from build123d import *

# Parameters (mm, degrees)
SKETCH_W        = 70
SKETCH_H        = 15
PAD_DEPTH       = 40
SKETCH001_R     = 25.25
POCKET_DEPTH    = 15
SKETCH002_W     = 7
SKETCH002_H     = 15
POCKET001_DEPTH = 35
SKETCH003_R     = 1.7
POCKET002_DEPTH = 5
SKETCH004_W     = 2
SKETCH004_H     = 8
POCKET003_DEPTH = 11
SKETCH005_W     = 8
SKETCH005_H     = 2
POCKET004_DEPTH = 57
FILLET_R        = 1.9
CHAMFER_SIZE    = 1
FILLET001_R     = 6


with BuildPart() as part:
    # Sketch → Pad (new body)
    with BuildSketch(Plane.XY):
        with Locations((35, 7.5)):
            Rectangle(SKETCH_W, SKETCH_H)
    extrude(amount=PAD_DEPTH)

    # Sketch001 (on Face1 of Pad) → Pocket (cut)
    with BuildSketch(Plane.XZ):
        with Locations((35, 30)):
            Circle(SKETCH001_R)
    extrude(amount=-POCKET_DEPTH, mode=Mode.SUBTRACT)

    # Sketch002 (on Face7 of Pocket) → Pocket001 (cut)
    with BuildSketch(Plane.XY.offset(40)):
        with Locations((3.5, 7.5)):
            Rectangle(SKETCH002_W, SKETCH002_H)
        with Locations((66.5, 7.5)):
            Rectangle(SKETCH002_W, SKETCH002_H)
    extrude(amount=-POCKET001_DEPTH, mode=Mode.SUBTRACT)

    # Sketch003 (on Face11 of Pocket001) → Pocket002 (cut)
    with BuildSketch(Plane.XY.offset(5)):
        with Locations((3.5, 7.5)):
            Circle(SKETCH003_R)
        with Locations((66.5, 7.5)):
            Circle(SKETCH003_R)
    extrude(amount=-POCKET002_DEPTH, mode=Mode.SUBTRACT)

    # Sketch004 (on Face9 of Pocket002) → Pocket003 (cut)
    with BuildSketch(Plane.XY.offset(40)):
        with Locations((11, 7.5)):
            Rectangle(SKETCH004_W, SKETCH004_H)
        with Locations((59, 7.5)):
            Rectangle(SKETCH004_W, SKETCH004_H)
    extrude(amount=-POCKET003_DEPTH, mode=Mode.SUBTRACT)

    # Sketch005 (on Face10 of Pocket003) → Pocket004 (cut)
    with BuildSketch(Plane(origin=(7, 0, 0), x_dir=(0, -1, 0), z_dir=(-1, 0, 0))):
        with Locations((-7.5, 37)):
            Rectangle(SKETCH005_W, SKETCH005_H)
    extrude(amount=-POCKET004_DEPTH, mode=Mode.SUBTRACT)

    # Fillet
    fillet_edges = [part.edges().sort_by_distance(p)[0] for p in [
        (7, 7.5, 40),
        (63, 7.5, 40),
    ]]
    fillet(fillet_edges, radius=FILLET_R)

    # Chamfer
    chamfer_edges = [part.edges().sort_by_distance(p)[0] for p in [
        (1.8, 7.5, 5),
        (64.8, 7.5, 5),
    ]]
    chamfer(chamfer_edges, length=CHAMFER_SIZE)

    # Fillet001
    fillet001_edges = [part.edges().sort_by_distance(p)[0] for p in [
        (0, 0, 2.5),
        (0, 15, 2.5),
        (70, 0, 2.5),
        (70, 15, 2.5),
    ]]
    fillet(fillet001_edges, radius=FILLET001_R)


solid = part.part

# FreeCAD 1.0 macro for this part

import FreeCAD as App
import Part
import Sketcher

V = App.Vector
Q = App.Units.Quantity


def edges_at(feature, points):
    """Names of the edges that pass closest to the given points."""
    edges = feature.Shape.Edges
    near = lambda p: min(range(len(edges)), key=lambda i: edges[i].distToShape(Part.Vertex(*p))[0])
    return sorted({f"Edge{near(p) + 1}" for p in points})

doc = App.newDocument("Part")
body = doc.addObject("PartDesign::Body", "Body")

# Sketch on XY plane
sketch1 = doc.addObject("Sketcher::SketchObject", "Sketch")
body.addObject(sketch1)
sketch1.AttachmentSupport = (doc.XY_Plane, [""])
sketch1.MapMode = "FlatFace"
sketch1.addGeometry([
    Part.LineSegment(V(0, 15, 0), V(0, 0, 0)),
    Part.LineSegment(V(0, 0, 0), V(70, 0, 0)),
    Part.LineSegment(V(70, 0, 0), V(70, 15, 0)),
    Part.LineSegment(V(70, 15, 0), V(0, 15, 0)),
], False)
sketch1.addConstraint([
    Sketcher.Constraint("Coincident", 0, 2, 1, 1),
    Sketcher.Constraint("Coincident", 1, 2, 2, 1),
    Sketcher.Constraint("Coincident", 2, 2, 3, 1),
    Sketcher.Constraint("Coincident", 3, 2, 0, 1),
    Sketcher.Constraint("Vertical", 0),
    Sketcher.Constraint("Horizontal", 1),
    Sketcher.Constraint("Vertical", 2),
    Sketcher.Constraint("Horizontal", 3),
    Sketcher.Constraint("Coincident", 0, 2, -1, 1),
    Sketcher.Constraint("DistanceX", 1, 1, 1, 2, Q("70 mm")),
    Sketcher.Constraint("DistanceY", 0, 2, 0, 1, Q("15 mm")),
])
pad1 = doc.addObject("PartDesign::Pad", "Pad")
body.addObject(pad1)
pad1.Profile = sketch1
pad1.Length = 40

# Sketch on XZ plane
sketch2 = doc.addObject("Sketcher::SketchObject", "Sketch001")
body.addObject(sketch2)
sketch2.AttachmentSupport = (doc.XZ_Plane, [""])
sketch2.MapMode = "FlatFace"
sketch2.addGeometry(Part.Circle(V(35, 30, 0), V(0, 0, 1), 25.25), False)
sketch2.addConstraint([
    Sketcher.Constraint("Diameter", 0, Q("50.5 mm")),
    Sketcher.Constraint("DistanceX", -1, 1, 0, 3, Q("35 mm")),
    Sketcher.Constraint("DistanceY", -1, 1, 0, 3, Q("30 mm")),
])
pocket1 = doc.addObject("PartDesign::Pocket", "Pocket")
body.addObject(pocket1)
pocket1.Profile = sketch2
pocket1.Length = 15

# Sketch on XY plane
sketch3 = doc.addObject("Sketcher::SketchObject", "Sketch002")
body.addObject(sketch3)
sketch3.AttachmentSupport = (doc.XY_Plane, [""])
sketch3.MapMode = "FlatFace"
sketch3.AttachmentOffset = App.Placement(V(0, 0, 40), App.Rotation())
sketch3.addGeometry([
    Part.LineSegment(V(0, 15, 0), V(0, 0, 0)),  # 0
    Part.LineSegment(V(0, 0, 0), V(7, 0, 0)),  # 1
    Part.LineSegment(V(7, 0, 0), V(7, 15, 0)),  # 2
    Part.LineSegment(V(7, 15, 0), V(0, 15, 0)),  # 3
    Part.LineSegment(V(63, 15, 0), V(63, 0, 0)),  # 4
    Part.LineSegment(V(63, 0, 0), V(70, 0, 0)),  # 5
    Part.LineSegment(V(70, 0, 0), V(70, 15, 0)),  # 6
    Part.LineSegment(V(70, 15, 0), V(63, 15, 0)),  # 7
], False)
sketch3.addConstraint([
    Sketcher.Constraint("Coincident", 0, 2, 1, 1),
    Sketcher.Constraint("Coincident", 1, 2, 2, 1),
    Sketcher.Constraint("Coincident", 2, 2, 3, 1),
    Sketcher.Constraint("Coincident", 3, 2, 0, 1),
    Sketcher.Constraint("Coincident", 4, 2, 5, 1),
    Sketcher.Constraint("Coincident", 5, 2, 6, 1),
    Sketcher.Constraint("Coincident", 6, 2, 7, 1),
    Sketcher.Constraint("Coincident", 7, 2, 4, 1),
    Sketcher.Constraint("Vertical", 0),
    Sketcher.Constraint("Horizontal", 1),
    Sketcher.Constraint("Vertical", 2),
    Sketcher.Constraint("Horizontal", 3),
    Sketcher.Constraint("Vertical", 4),
    Sketcher.Constraint("Horizontal", 5),
    Sketcher.Constraint("Vertical", 6),
    Sketcher.Constraint("Horizontal", 7),
    Sketcher.Constraint("Coincident", 0, 2, -1, 1),
    Sketcher.Constraint("PointOnObject", 4, 2, -1),
    Sketcher.Constraint("Horizontal", 3, 2, 6, 2),
    Sketcher.Constraint("Equal", 3, 5),
    Sketcher.Constraint("DistanceX", 1, 1, 1, 2, Q("7 mm")),
    Sketcher.Constraint("DistanceY", 0, 2, 0, 1, Q("15 mm")),
    Sketcher.Constraint("DistanceX", -1, 1, 4, 2, Q("63 mm")),
])
pocket2 = doc.addObject("PartDesign::Pocket", "Pocket001")
body.addObject(pocket2)
pocket2.Profile = sketch3
pocket2.Length = 35

# Sketch on XY plane
sketch4 = doc.addObject("Sketcher::SketchObject", "Sketch003")
body.addObject(sketch4)
sketch4.AttachmentSupport = (doc.XY_Plane, [""])
sketch4.MapMode = "FlatFace"
sketch4.AttachmentOffset = App.Placement(V(0, 0, 5), App.Rotation())
sketch4.addGeometry([
    Part.Circle(V(3.5, 7.5, 0), V(0, 0, 1), 1.7),
    Part.Circle(V(66.5, 7.5, 0), V(0, 0, 1), 1.7),
], False)
sketch4.addConstraint([
    Sketcher.Constraint("Equal", 0, 1),
    Sketcher.Constraint("Horizontal", 0, 3, 1, 3),
    Sketcher.Constraint("Diameter", 0, Q("3.4 mm")),
    Sketcher.Constraint("DistanceX", 0, 3, 1, 3, Q("63 mm")),
    Sketcher.Constraint("DistanceX", -1, 1, 0, 3, Q("3.5 mm")),
    Sketcher.Constraint("DistanceY", -1, 1, 0, 3, Q("7.5 mm")),
])
pocket3 = doc.addObject("PartDesign::Pocket", "Pocket002")
body.addObject(pocket3)
pocket3.Profile = sketch4
pocket3.Length = 5

# Sketch on XY plane
sketch5 = doc.addObject("Sketcher::SketchObject", "Sketch004")
body.addObject(sketch5)
sketch5.AttachmentSupport = (doc.XY_Plane, [""])
sketch5.MapMode = "FlatFace"
sketch5.AttachmentOffset = App.Placement(V(0, 0, 40), App.Rotation())
sketch5.addGeometry([
    Part.LineSegment(V(10, 11.5, 0), V(10, 3.5, 0)),  # 0
    Part.LineSegment(V(10, 3.5, 0), V(12, 3.5, 0)),  # 1
    Part.LineSegment(V(12, 3.5, 0), V(12, 11.5, 0)),  # 2
    Part.LineSegment(V(12, 11.5, 0), V(10, 11.5, 0)),  # 3
    Part.LineSegment(V(58, 11.5, 0), V(58, 3.5, 0)),  # 4
    Part.LineSegment(V(58, 3.5, 0), V(60, 3.5, 0)),  # 5
    Part.LineSegment(V(60, 3.5, 0), V(60, 11.5, 0)),  # 6
    Part.LineSegment(V(60, 11.5, 0), V(58, 11.5, 0)),  # 7
], False)
sketch5.addConstraint([
    Sketcher.Constraint("Coincident", 0, 2, 1, 1),
    Sketcher.Constraint("Coincident", 1, 2, 2, 1),
    Sketcher.Constraint("Coincident", 2, 2, 3, 1),
    Sketcher.Constraint("Coincident", 3, 2, 0, 1),
    Sketcher.Constraint("Coincident", 4, 2, 5, 1),
    Sketcher.Constraint("Coincident", 5, 2, 6, 1),
    Sketcher.Constraint("Coincident", 6, 2, 7, 1),
    Sketcher.Constraint("Coincident", 7, 2, 4, 1),
    Sketcher.Constraint("Vertical", 0),
    Sketcher.Constraint("Horizontal", 1),
    Sketcher.Constraint("Vertical", 2),
    Sketcher.Constraint("Horizontal", 3),
    Sketcher.Constraint("Vertical", 4),
    Sketcher.Constraint("Horizontal", 5),
    Sketcher.Constraint("Vertical", 6),
    Sketcher.Constraint("Horizontal", 7),
    Sketcher.Constraint("Horizontal", 1, 2, 4, 2),
    Sketcher.Constraint("Horizontal", 3, 2, 6, 2),
    Sketcher.Constraint("Equal", 3, 5),
    Sketcher.Constraint("DistanceX", 1, 1, 1, 2, Q("2 mm")),
    Sketcher.Constraint("DistanceY", 0, 2, 0, 1, Q("8 mm")),
    Sketcher.Constraint("DistanceX", -1, 1, 0, 2, Q("10 mm")),
    Sketcher.Constraint("DistanceX", -1, 1, 4, 2, Q("58 mm")),
    Sketcher.Constraint("DistanceY", -1, 1, 0, 2, Q("3.5 mm")),
])
pocket4 = doc.addObject("PartDesign::Pocket", "Pocket003")
body.addObject(pocket4)
pocket4.Profile = sketch5
pocket4.Length = 11

# Sketch on YZ plane
sketch6 = doc.addObject("Sketcher::SketchObject", "Sketch005")
body.addObject(sketch6)
sketch6.AttachmentSupport = (doc.YZ_Plane, [""])
sketch6.MapMode = "FlatFace"
sketch6.AttachmentOffset = App.Placement(V(0, 0, 7), App.Rotation())
sketch6.addGeometry([
    Part.LineSegment(V(11.5, 38, 0), V(11.5, 36, 0)),
    Part.LineSegment(V(11.5, 36, 0), V(3.5, 36, 0)),
    Part.LineSegment(V(3.5, 36, 0), V(3.5, 38, 0)),
    Part.LineSegment(V(3.5, 38, 0), V(11.5, 38, 0)),
], False)
sketch6.addConstraint([
    Sketcher.Constraint("Coincident", 0, 2, 1, 1),
    Sketcher.Constraint("Coincident", 1, 2, 2, 1),
    Sketcher.Constraint("Coincident", 2, 2, 3, 1),
    Sketcher.Constraint("Coincident", 3, 2, 0, 1),
    Sketcher.Constraint("Vertical", 0),
    Sketcher.Constraint("Horizontal", 1),
    Sketcher.Constraint("Vertical", 2),
    Sketcher.Constraint("Horizontal", 3),
    Sketcher.Constraint("DistanceX", 1, 2, 1, 1, Q("8 mm")),
    Sketcher.Constraint("DistanceY", 0, 2, 0, 1, Q("2 mm")),
    Sketcher.Constraint("DistanceY", -1, 1, 0, 2, Q("36 mm")),
    Sketcher.Constraint("DistanceX", -1, 1, 0, 2, Q("11.5 mm")),
])
pocket5 = doc.addObject("PartDesign::Pocket", "Pocket004")
body.addObject(pocket5)
pocket5.Profile = sketch6
pocket5.Length = 57
pocket5.Reversed = True
doc.recompute()

fillet = doc.addObject("PartDesign::Fillet", "Fillet")
body.addObject(fillet)
fillet.Base = (pocket5, edges_at(pocket5, [(7, 7.5, 40), (63, 7.5, 40)]))
fillet.Radius = 1.9
doc.recompute()

chamfer = doc.addObject("PartDesign::Chamfer", "Chamfer")
body.addObject(chamfer)
chamfer.Base = (fillet, edges_at(fillet, [(1.8, 7.5, 5), (64.8, 7.5, 5)]))
chamfer.Size = 1
doc.recompute()

fillet2 = doc.addObject("PartDesign::Fillet", "Fillet001")
body.addObject(fillet2)
fillet2.Base = (chamfer, edges_at(chamfer, [
    (0, 0, 2.5),
    (0, 15, 2.5),
    (70, 0, 2.5),
    (70, 15, 2.5),
]))
fillet2.Radius = 6

doc.recompute()
